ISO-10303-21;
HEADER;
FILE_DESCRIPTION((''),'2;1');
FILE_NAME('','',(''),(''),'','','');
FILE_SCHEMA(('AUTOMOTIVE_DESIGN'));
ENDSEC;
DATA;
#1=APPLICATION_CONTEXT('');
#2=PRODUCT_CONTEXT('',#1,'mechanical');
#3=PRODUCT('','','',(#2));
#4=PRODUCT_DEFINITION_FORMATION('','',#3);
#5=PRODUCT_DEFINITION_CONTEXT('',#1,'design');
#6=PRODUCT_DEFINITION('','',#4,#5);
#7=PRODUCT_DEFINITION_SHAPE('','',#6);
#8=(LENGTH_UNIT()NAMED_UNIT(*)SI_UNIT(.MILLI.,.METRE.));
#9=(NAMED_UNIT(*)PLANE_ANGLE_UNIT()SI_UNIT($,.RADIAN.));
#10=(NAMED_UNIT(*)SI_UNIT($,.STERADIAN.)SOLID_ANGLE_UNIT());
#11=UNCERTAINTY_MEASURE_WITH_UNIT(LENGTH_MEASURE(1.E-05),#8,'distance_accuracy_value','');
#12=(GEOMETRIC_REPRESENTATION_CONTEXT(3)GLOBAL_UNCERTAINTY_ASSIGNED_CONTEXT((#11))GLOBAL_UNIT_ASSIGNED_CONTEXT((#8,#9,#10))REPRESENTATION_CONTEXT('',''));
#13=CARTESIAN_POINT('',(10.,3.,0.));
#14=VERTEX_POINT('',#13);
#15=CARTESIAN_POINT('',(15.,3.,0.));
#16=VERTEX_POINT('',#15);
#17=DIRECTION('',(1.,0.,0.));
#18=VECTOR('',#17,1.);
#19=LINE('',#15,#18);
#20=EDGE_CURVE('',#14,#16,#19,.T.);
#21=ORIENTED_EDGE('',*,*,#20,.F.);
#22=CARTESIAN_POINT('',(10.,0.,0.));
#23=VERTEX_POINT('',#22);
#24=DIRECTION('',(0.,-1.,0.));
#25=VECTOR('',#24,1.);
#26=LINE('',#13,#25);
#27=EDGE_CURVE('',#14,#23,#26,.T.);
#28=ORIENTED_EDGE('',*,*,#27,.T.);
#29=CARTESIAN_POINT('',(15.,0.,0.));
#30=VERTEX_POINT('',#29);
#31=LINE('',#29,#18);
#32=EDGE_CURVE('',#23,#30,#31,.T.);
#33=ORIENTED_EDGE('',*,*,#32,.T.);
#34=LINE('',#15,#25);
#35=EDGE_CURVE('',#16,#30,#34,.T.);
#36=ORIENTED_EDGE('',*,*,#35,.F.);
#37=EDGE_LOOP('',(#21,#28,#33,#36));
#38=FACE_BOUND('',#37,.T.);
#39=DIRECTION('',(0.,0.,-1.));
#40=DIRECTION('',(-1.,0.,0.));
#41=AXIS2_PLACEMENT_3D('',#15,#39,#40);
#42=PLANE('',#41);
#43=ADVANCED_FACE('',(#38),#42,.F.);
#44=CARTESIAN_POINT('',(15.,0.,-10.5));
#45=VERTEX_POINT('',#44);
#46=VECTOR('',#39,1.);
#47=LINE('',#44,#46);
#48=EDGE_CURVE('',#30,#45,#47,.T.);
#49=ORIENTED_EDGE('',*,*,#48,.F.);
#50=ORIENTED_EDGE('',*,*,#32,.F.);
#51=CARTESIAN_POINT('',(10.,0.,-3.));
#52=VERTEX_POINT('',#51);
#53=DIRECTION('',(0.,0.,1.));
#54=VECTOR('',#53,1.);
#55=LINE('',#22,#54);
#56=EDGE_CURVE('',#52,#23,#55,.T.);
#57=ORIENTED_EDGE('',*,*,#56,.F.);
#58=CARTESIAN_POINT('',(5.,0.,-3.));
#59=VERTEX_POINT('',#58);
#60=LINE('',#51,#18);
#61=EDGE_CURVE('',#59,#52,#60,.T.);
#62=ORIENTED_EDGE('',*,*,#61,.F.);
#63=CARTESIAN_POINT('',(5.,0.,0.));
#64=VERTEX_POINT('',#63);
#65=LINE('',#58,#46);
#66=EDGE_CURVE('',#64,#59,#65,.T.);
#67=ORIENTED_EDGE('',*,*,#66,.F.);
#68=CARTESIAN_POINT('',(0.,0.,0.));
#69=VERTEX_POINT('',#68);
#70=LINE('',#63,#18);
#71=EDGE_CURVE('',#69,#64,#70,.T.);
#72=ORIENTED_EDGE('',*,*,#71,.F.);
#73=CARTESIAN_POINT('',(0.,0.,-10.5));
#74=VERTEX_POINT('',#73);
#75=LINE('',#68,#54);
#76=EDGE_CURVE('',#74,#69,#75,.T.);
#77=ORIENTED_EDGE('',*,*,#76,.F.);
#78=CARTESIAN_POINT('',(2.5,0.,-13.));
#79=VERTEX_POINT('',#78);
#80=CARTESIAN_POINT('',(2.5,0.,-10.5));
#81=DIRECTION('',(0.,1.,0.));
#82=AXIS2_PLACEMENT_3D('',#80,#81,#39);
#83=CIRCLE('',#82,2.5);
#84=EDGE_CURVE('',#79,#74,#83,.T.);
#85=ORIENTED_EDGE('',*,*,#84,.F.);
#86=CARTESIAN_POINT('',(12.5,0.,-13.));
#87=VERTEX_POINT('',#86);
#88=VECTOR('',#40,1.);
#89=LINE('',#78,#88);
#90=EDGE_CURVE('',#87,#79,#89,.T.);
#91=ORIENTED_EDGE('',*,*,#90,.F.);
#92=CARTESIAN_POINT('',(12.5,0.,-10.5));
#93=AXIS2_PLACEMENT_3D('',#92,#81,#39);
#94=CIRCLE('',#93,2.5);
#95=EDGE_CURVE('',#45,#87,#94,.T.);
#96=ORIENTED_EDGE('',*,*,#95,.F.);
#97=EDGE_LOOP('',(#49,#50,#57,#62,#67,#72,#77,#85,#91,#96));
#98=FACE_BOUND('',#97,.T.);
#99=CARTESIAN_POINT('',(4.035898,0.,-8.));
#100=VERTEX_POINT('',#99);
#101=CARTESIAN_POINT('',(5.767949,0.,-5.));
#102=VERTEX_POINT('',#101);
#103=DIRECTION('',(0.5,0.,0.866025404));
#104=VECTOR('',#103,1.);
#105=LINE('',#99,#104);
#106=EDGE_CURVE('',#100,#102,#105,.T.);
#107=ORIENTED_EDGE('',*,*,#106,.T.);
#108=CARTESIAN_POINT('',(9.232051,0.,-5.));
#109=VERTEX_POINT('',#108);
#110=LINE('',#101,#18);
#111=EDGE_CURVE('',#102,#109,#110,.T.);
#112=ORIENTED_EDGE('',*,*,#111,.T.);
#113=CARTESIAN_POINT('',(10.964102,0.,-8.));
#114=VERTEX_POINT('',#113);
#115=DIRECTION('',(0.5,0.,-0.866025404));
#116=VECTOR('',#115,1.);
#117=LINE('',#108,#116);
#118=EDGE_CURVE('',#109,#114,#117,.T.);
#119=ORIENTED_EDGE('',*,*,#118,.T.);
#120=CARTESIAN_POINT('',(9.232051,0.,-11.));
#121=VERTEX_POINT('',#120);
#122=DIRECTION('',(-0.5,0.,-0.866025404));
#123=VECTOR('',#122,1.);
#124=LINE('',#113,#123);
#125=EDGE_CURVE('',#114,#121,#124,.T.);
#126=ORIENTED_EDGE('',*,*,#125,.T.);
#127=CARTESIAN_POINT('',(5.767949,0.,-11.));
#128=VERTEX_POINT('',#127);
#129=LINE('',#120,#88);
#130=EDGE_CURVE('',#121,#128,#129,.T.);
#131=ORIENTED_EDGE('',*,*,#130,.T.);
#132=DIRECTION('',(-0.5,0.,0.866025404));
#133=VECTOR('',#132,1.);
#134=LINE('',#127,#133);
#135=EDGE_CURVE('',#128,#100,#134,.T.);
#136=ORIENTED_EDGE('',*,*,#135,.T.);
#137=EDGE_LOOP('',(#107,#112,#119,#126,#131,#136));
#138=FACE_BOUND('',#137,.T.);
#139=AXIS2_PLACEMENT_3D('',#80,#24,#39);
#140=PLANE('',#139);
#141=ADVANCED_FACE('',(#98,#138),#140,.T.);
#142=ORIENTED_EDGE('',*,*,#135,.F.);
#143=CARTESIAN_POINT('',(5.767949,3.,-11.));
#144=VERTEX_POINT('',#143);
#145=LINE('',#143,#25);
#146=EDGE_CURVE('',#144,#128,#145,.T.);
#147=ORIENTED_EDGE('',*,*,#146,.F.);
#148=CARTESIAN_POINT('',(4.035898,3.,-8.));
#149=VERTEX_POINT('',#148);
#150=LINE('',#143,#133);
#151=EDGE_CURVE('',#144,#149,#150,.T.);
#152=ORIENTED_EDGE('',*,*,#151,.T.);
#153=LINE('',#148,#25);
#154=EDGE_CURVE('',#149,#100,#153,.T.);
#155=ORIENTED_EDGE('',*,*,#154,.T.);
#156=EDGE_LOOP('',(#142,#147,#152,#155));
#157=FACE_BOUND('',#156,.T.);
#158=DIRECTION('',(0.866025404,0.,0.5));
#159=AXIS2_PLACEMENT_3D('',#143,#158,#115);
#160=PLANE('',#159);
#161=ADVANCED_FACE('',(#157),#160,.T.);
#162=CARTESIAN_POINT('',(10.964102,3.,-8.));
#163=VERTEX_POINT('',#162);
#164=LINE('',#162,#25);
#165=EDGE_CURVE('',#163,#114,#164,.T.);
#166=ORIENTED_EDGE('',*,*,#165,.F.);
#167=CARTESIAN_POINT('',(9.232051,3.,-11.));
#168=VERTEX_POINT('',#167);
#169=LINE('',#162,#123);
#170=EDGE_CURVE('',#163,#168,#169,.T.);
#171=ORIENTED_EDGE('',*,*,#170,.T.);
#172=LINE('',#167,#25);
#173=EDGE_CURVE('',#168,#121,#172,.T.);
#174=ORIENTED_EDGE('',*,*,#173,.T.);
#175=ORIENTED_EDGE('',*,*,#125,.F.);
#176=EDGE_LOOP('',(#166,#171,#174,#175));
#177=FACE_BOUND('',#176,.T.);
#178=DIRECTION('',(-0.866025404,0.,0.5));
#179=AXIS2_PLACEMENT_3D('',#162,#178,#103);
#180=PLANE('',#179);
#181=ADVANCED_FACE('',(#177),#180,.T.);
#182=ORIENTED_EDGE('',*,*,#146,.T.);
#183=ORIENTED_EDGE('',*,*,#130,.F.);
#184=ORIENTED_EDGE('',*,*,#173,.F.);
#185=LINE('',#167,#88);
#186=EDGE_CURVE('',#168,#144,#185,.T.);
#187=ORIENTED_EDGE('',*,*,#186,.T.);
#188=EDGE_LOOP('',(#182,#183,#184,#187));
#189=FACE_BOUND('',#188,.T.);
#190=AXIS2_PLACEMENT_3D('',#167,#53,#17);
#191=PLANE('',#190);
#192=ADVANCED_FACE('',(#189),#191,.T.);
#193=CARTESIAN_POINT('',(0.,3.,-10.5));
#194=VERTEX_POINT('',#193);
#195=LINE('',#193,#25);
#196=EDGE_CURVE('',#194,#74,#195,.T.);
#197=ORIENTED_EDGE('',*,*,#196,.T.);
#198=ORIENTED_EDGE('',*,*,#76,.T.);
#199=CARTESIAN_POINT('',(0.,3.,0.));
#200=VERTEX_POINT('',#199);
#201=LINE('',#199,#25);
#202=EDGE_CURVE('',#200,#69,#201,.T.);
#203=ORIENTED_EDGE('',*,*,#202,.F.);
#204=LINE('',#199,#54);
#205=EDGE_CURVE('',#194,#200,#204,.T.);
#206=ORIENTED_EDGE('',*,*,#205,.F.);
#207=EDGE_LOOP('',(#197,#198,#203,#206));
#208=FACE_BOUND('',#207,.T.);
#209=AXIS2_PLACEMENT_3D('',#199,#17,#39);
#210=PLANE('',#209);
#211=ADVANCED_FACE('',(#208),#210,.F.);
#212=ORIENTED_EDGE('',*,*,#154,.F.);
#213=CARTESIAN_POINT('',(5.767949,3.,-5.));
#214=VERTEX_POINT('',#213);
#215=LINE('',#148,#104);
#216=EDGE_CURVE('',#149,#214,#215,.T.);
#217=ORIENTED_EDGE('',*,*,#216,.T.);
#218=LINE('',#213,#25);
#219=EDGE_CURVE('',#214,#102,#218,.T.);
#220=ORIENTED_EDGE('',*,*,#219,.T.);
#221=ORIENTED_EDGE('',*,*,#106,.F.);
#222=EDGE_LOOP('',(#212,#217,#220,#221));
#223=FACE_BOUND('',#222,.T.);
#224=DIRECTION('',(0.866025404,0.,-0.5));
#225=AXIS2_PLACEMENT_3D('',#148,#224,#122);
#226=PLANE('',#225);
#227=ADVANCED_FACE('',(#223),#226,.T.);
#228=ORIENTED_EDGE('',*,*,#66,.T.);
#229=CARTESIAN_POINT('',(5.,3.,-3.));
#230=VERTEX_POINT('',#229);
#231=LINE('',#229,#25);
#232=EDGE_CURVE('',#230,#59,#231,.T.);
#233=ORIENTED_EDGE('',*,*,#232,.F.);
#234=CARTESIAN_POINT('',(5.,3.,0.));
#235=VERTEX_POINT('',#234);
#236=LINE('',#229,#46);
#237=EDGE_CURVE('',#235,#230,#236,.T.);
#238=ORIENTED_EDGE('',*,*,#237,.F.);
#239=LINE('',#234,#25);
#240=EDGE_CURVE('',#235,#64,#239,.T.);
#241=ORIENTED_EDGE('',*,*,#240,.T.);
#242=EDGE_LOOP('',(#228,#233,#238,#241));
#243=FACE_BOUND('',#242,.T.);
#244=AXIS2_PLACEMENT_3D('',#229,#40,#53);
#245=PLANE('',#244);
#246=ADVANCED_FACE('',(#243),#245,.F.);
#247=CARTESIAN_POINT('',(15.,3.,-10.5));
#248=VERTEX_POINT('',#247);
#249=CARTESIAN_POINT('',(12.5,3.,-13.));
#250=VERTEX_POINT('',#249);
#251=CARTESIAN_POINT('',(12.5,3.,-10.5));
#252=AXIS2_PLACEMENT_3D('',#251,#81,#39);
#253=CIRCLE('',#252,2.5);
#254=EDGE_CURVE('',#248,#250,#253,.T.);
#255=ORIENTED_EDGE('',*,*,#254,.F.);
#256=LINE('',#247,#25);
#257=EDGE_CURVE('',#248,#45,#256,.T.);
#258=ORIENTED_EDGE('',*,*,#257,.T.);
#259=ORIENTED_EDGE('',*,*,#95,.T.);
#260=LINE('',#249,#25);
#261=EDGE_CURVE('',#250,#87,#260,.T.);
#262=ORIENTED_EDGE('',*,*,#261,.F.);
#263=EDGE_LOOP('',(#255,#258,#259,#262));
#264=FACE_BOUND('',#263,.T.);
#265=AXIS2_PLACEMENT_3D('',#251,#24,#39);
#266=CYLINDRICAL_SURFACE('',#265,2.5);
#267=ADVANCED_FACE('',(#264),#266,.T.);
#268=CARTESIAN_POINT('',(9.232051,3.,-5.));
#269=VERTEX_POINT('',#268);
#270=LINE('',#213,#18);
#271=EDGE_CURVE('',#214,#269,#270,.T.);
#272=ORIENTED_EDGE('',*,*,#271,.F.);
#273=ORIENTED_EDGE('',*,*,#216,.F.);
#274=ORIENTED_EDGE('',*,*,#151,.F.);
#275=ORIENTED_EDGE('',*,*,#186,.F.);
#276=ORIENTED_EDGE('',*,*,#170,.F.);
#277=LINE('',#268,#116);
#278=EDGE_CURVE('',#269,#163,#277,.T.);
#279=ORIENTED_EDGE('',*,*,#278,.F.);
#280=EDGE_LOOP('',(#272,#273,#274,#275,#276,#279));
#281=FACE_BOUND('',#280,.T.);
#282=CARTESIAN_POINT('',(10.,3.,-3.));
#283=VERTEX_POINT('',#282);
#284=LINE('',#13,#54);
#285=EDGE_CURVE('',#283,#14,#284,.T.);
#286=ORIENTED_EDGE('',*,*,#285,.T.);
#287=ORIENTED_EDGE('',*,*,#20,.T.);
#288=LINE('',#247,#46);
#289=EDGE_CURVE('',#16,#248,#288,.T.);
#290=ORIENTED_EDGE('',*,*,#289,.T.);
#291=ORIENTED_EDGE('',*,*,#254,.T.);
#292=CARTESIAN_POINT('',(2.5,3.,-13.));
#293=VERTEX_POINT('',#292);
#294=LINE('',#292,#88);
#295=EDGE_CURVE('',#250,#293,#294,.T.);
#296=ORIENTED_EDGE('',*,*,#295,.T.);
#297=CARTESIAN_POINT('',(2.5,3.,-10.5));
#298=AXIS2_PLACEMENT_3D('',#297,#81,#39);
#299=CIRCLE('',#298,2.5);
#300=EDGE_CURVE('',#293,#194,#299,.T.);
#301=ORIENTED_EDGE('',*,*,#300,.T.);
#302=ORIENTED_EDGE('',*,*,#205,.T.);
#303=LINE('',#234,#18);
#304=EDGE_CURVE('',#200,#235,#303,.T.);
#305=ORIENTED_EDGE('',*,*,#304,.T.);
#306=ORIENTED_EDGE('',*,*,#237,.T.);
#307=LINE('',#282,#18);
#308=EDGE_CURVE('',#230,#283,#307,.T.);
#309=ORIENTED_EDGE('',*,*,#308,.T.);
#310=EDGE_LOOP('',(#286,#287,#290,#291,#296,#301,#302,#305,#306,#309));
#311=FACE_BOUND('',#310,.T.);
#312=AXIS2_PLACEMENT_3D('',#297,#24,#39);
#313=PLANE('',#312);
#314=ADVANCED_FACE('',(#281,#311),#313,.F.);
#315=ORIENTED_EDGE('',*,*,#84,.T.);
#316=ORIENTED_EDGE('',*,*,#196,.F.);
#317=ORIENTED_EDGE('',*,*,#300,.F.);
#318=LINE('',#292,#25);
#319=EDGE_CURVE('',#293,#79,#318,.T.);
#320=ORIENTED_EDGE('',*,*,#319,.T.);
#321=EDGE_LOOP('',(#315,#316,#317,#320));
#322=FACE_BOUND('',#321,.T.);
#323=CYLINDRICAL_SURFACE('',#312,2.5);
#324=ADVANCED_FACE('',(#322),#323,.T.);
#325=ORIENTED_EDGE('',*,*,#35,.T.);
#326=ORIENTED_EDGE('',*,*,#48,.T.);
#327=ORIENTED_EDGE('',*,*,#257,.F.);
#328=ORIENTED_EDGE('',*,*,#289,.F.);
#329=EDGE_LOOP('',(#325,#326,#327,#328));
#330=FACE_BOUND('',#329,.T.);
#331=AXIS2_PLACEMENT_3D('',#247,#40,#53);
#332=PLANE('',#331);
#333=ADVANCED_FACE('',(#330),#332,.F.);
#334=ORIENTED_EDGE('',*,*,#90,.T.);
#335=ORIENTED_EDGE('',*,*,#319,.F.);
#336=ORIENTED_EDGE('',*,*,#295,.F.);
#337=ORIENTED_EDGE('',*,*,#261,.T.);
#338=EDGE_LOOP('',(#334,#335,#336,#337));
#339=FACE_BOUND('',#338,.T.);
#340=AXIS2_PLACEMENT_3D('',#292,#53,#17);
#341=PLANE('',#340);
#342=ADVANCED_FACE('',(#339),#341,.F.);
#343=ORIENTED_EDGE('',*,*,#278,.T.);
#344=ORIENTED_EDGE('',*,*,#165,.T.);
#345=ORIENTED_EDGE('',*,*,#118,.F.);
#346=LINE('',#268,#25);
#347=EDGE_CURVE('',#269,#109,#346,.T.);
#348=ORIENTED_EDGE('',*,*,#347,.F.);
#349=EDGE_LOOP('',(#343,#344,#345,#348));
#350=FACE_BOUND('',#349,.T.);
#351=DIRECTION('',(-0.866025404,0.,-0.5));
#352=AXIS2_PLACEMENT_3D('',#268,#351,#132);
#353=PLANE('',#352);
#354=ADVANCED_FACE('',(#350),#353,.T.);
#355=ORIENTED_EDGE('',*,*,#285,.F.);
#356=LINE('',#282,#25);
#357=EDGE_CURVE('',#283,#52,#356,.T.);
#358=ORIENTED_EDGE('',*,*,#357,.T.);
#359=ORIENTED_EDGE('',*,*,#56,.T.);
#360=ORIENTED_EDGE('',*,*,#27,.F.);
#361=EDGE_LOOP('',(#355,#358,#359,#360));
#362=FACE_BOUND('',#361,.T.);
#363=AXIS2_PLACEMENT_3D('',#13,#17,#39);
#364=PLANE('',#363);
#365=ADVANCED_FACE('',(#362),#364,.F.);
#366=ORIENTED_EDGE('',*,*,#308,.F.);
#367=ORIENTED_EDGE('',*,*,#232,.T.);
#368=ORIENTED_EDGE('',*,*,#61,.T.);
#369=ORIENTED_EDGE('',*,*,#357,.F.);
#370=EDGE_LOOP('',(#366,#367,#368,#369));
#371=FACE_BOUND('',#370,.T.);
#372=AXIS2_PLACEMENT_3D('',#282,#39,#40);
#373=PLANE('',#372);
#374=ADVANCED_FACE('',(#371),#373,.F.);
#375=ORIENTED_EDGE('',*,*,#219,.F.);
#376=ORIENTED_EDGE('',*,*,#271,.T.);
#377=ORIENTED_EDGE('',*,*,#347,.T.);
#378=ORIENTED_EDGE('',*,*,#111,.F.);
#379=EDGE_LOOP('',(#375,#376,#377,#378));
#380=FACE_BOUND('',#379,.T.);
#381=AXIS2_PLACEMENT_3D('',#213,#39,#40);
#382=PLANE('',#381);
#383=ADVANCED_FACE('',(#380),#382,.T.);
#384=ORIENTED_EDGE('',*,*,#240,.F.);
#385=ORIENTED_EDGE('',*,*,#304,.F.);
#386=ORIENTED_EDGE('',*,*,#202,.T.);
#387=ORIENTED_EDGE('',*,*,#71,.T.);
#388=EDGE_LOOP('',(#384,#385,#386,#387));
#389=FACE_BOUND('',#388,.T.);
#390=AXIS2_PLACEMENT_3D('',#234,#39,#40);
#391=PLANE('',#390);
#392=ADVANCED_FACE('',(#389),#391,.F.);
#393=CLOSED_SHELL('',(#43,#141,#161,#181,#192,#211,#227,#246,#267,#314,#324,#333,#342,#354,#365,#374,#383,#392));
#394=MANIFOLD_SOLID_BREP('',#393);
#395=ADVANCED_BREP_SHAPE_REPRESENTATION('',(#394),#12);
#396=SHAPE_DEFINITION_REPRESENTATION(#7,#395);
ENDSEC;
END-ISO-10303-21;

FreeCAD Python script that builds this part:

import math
import FreeCAD as App
import Part
import Sketcher
from FreeCAD import Vector
Q = App.Units.Quantity

doc = App.newDocument("Part")
body = doc.addObject("PartDesign::Body", "Body")

sketch1 = body.newObject("Sketcher::SketchObject", "Sketch")
sketch1.AttachmentSupport = (doc.getObject("XZ_Plane"), [""])
sketch1.MapMode = "FlatFace"
sketch1.addGeometry([
    Part.LineSegment(Vector(0, -10.5, 0), Vector(0, 0, 0)),
    Part.LineSegment(Vector(0, 0, 0), Vector(5, 0, 0)),
    Part.LineSegment(Vector(5, 0, 0), Vector(5, -3, 0)),
    Part.LineSegment(Vector(5, -3, 0), Vector(10, -3, 0)),
    Part.LineSegment(Vector(10, -3, 0), Vector(10, 0, 0)),
    Part.LineSegment(Vector(10, 0, 0), Vector(15, 0, 0)),
    Part.LineSegment(Vector(15, 0, 0), Vector(15, -10.5, 0)),
    Part.ArcOfCircle(Part.Circle(Vector(12.5, -10.5, 0), Vector(0, 0, 1), 2.5), math.radians(-90), math.radians(0)),
    Part.LineSegment(Vector(12.5, -13, 0), Vector(2.5, -13, 0)),
    Part.ArcOfCircle(Part.Circle(Vector(2.5, -10.5, 0), Vector(0, 0, 1), 2.5), math.radians(180), math.radians(270)),
    Part.LineSegment(Vector(5.8, -5, 0), Vector(4, -8, 0)),
    Part.LineSegment(Vector(4, -8, 0), Vector(5.8, -11, 0)),
    Part.LineSegment(Vector(5.8, -11, 0), Vector(9.2, -11, 0)),
    Part.LineSegment(Vector(9.2, -11, 0), Vector(11, -8, 0)),
    Part.LineSegment(Vector(11, -8, 0), Vector(9.2, -5, 0)),
    Part.LineSegment(Vector(9.2, -5, 0), Vector(5.8, -5, 0)),
], False)
sketch1.addConstraint([
    Sketcher.Constraint("Coincident", 0, 2, 1, 1),
    Sketcher.Constraint("Coincident", 1, 2, 2, 1),
    Sketcher.Constraint("Coincident", 2, 2, 3, 1),
    Sketcher.Constraint("Coincident", 3, 2, 4, 1),
    Sketcher.Constraint("Coincident", 4, 2, 5, 1),
    Sketcher.Constraint("Coincident", 5, 2, 6, 1),
    Sketcher.Constraint("Tangent", 6, 2, 7, 2),
    Sketcher.Constraint("Tangent", 7, 1, 8, 1),
    Sketcher.Constraint("Tangent", 8, 2, 9, 2),
    Sketcher.Constraint("Tangent", 9, 1, 0, 1),
    Sketcher.Constraint("Coincident", 10, 2, 11, 1),
    Sketcher.Constraint("Coincident", 11, 2, 12, 1),
    Sketcher.Constraint("Coincident", 12, 2, 13, 1),
    Sketcher.Constraint("Coincident", 13, 2, 14, 1),
    Sketcher.Constraint("Coincident", 14, 2, 15, 1),
    Sketcher.Constraint("Coincident", 15, 2, 10, 1),
    Sketcher.Constraint("Vertical", 0),
    Sketcher.Constraint("Horizontal", 1),
    Sketcher.Constraint("Vertical", 2),
    Sketcher.Constraint("Horizontal", 3),
    Sketcher.Constraint("Vertical", 4),
    Sketcher.Constraint("Horizontal", 5),
    Sketcher.Constraint("Vertical", 6),
    Sketcher.Constraint("Horizontal", 8),
    Sketcher.Constraint("Horizontal", 12),
    Sketcher.Constraint("Horizontal", 15),
    Sketcher.Constraint("Coincident", 0, 2, -1, 1),
    Sketcher.Constraint("Equal", 7, 9),
    Sketcher.Constraint("PointOnObject", 4, 2, -1),
    Sketcher.Constraint("Parallel", 10, 13),
    Sketcher.Constraint("Parallel", 11, 14),
    Sketcher.Constraint("Horizontal", 10, 2, 13, 2),
    Sketcher.Constraint("Vertical", 12, 2, 14, 2),
    Sketcher.Constraint("Vertical", 11, 2, 15, 2),
    Sketcher.Constraint("Equal", 1, 3),
    Sketcher.Constraint("Equal", 3, 5),
    Sketcher.Constraint("Radius", 7, Q("2.5 mm")),
    Sketcher.Constraint("DistanceX", 1, 1, 1, 2, Q("5 mm")),
    Sketcher.Constraint("DistanceY", 2, 2, 2, 1, Q("3 mm")),
    Sketcher.Constraint("Angle", 10, Q("-120 deg")),
    Sketcher.Constraint("DistanceY", 0, 1, 0, 2, Q("10.5 mm")),
    Sketcher.Constraint("DistanceY", 10, 2, -1, 1, Q("8 mm")),
    Sketcher.Constraint("DistanceY", 11, 2, -1, 1, Q("11 mm")),
    Sketcher.Constraint("DistanceX", 12, 1, 12, 2, Q("3.464102 mm")),
    Sketcher.Constraint("DistanceX", -1, 1, 10, 2, Q("4.035898 mm")),
])
pad1 = body.newObject("PartDesign::Pad", "Pad")
pad1.Profile = sketch1
pad1.Length = 3
pad1.Reversed = True

doc.recompute()
